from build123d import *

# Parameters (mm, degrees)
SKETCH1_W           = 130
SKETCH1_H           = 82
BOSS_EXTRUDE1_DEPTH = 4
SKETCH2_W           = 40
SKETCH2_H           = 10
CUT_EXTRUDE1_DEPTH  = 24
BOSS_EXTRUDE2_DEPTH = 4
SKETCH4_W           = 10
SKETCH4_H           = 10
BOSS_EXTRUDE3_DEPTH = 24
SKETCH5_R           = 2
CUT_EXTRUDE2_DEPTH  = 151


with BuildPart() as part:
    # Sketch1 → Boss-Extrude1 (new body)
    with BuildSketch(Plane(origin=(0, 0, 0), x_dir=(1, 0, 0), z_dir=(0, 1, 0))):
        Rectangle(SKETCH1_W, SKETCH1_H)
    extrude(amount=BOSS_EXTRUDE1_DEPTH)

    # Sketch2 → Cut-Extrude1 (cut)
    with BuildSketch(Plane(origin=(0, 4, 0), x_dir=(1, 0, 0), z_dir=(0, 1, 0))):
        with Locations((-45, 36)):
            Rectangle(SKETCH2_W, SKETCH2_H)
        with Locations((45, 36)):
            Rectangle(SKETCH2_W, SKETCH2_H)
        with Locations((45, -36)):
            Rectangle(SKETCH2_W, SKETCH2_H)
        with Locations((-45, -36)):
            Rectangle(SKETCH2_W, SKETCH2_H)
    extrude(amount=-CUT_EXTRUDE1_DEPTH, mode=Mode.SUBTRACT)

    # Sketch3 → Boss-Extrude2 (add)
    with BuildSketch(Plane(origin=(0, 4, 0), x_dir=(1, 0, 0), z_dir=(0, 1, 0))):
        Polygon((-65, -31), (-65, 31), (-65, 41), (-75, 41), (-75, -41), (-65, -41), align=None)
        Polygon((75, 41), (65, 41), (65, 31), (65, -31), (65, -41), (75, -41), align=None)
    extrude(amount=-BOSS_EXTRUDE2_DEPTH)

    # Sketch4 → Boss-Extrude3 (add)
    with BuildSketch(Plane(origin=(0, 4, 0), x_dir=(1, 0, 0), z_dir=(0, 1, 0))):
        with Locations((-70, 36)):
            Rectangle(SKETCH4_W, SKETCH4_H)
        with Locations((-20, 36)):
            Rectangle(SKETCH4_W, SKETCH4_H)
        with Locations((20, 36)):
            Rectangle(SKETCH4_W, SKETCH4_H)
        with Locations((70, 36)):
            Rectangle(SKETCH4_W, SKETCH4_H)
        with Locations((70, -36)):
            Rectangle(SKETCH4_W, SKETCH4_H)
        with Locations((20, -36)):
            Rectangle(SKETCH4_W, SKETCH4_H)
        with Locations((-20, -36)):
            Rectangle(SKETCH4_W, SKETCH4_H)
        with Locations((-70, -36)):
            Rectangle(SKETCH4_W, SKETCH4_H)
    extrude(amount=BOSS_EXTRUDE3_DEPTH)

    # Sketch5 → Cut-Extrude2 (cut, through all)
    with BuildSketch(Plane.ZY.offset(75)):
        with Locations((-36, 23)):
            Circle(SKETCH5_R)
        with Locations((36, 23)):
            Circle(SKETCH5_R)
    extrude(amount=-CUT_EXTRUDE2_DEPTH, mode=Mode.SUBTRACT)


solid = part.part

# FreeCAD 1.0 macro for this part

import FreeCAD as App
import Part
import Sketcher

V = App.Vector
Q = App.Units.Quantity

doc = App.newDocument("Part")
params = doc.addObject("Spreadsheet::Sheet", "Params")
for row, (alias, value) in enumerate([
    ("sketch1_width", "130 mm"),
    ("sketch1_height", "82 mm"),
    ("pad1_length", "4 mm"),
    ("sketch2_width", "40 mm"),
    ("sketch2_height", "10 mm"),
    ("pocket1_length", "24 mm"),
    ("sketch3_width", "10 mm"),
    ("sketch3_height", "82 mm"),
    ("pad2_length", "4 mm"),
    ("sketch4_width", "10 mm"),
    ("pad3_length", "24 mm"),
    ("sketch5_diameter", "4 mm"),
], start=1):
    params.set(f"A{row}", alias)
    params.set(f"B{row}", "=" + value)
    params.setAlias(f"B{row}", alias)

body = doc.addObject("PartDesign::Body", "Body")

sketch1 = doc.addObject("Sketcher::SketchObject", "Sketch")
body.addObject(sketch1)
sketch1.AttachmentSupport = (doc.XZ_Plane, [""])
sketch1.MapMode = "FlatFace"
sketch1.addGeometry([
    Part.LineSegment(V(-65, -41, 0), V(-65, 41, 0)),
    Part.LineSegment(V(-65, 41, 0), V(65, 41, 0)),
    Part.LineSegment(V(65, 41, 0), V(65, -41, 0)),
    Part.LineSegment(V(65, -41, 0), V(-65, -41, 0)),
], False)
sketch1.addConstraint([
    Sketcher.Constraint("Coincident", 0, 2, 1, 1),
    Sketcher.Constraint("Coincident", 1, 2, 2, 1),
    Sketcher.Constraint("Coincident", 2, 2, 3, 1),
    Sketcher.Constraint("Coincident", 3, 2, 0, 1),
    Sketcher.Constraint("Vertical", 0),
    Sketcher.Constraint("Horizontal", 1),
    Sketcher.Constraint("Vertical", 2),
    Sketcher.Constraint("Horizontal", 3),
    Sketcher.Constraint("Symmetric", 0, 2, 2, 2, -1, 1),
    Sketcher.Constraint("DistanceX", 1, 1, 1, 2, Q("130 mm")),
    Sketcher.Constraint("DistanceY", 0, 1, 0, 2, Q("82 mm")),
])
sketch1.setExpression("Constraints[9]", "Params.sketch1_width")
sketch1.setExpression("Constraints[10]", "Params.sketch1_height")
pad1 = doc.addObject("PartDesign::Pad", "Pad")
body.addObject(pad1)
pad1.Profile = sketch1
pad1.setExpression("Length", "Params.pad1_length")
pad1.Reversed = True

sketch2 = doc.addObject("Sketcher::SketchObject", "Sketch001")
body.addObject(sketch2)
sketch2.AttachmentSupport = (doc.XZ_Plane, [""])
sketch2.MapMode = "FlatFace"
sketch2.AttachmentOffset = App.Placement(V(0, 0, -4), App.Rotation())
sketch2.addGeometry([
    Part.LineSegment(V(-65, -41, 0), V(-65, -31, 0)),
    Part.LineSegment(V(-65, -31, 0), V(-25, -31, 0)),
    Part.LineSegment(V(-25, -31, 0), V(-25, -41, 0)),
    Part.LineSegment(V(-25, -41, 0), V(-65, -41, 0)),
    Part.LineSegment(V(25, -41, 0), V(25, -31, 0)),
    Part.LineSegment(V(25, -31, 0), V(65, -31, 0)),
    Part.LineSegment(V(65, -31, 0), V(65, -41, 0)),
    Part.LineSegment(V(65, -41, 0), V(25, -41, 0)),
    Part.LineSegment(V(25, 31, 0), V(25, 41, 0)),
    Part.LineSegment(V(25, 41, 0), V(65, 41, 0)),
    Part.LineSegment(V(65, 41, 0), V(65, 31, 0)),
    Part.LineSegment(V(65, 31, 0), V(25, 31, 0)),
    Part.LineSegment(V(-65, 31, 0), V(-65, 41, 0)),
    Part.LineSegment(V(-65, 41, 0), V(-25, 41, 0)),
    Part.LineSegment(V(-25, 41, 0), V(-25, 31, 0)),
    Part.LineSegment(V(-25, 31, 0), V(-65, 31, 0)),
], False)
sketch2.addConstraint([
    Sketcher.Constraint("Coincident", 0, 2, 1, 1),
    Sketcher.Constraint("Coincident", 1, 2, 2, 1),
    Sketcher.Constraint("Coincident", 2, 2, 3, 1),
    Sketcher.Constraint("Coincident", 3, 2, 0, 1),
    Sketcher.Constraint("Coincident", 4, 2, 5, 1),
    Sketcher.Constraint("Coincident", 5, 2, 6, 1),
    Sketcher.Constraint("Coincident", 6, 2, 7, 1),
    Sketcher.Constraint("Coincident", 7, 2, 4, 1),
    Sketcher.Constraint("Coincident", 8, 2, 9, 1),
    Sketcher.Constraint("Coincident", 9, 2, 10, 1),
    Sketcher.Constraint("Coincident", 10, 2, 11, 1),
    Sketcher.Constraint("Coincident", 11, 2, 8, 1),
    Sketcher.Constraint("Coincident", 12, 2, 13, 1),
    Sketcher.Constraint("Coincident", 13, 2, 14, 1),
    Sketcher.Constraint("Coincident", 14, 2, 15, 1),
    Sketcher.Constraint("Coincident", 15, 2, 12, 1),
    Sketcher.Constraint("Vertical", 0),
    Sketcher.Constraint("Horizontal", 1),
    Sketcher.Constraint("Vertical", 2),
    Sketcher.Constraint("Horizontal", 3),
    Sketcher.Constraint("Vertical", 4),
    Sketcher.Constraint("Horizontal", 5),
    Sketcher.Constraint("Vertical", 6),
    Sketcher.Constraint("Horizontal", 7),
    Sketcher.Constraint("Vertical", 8),
    Sketcher.Constraint("Horizontal", 9),
    Sketcher.Constraint("Vertical", 10),
    Sketcher.Constraint("Horizontal", 11),
    Sketcher.Constraint("Vertical", 12),
    Sketcher.Constraint("Horizontal", 13),
    Sketcher.Constraint("Vertical", 14),
    Sketcher.Constraint("Horizontal", 15),
    Sketcher.Constraint("Symmetric", 2, 2, 8, 2, -1, 1),
    Sketcher.Constraint("Symmetric", 0, 2, 10, 2, -1, 1),
    Sketcher.Constraint("Symmetric", 6, 2, 12, 2, -1, 1),
    Sketcher.Constraint("Symmetric", 4, 2, 14, 2, -1, 1),
    Sketcher.Constraint("Symmetric", 1, 2, 4, 2, -2),
    Sketcher.Constraint("Symmetric", 3, 2, 6, 2, -2),
    Sketcher.Constraint("DistanceX", 1, 1, 1, 2, Q("40 mm")),
    Sketcher.Constraint("DistanceY", 0, 1, 0, 2, Q("10 mm")),
    Sketcher.Constraint("DistanceX", 0, 2, -1, 1, Q("65 mm")),
    Sketcher.Constraint("DistanceY", 0, 2, -1, 1, Q("31 mm")),
])
sketch2.setExpression("Constraints[38]", "Params.sketch2_width")
sketch2.setExpression("Constraints[39]", "Params.sketch2_height")
pocket1 = doc.addObject("PartDesign::Pocket", "Pocket")
body.addObject(pocket1)
pocket1.Profile = sketch2
pocket1.setExpression("Length", "Params.pocket1_length")
pocket1.Reversed = True

sketch3 = doc.addObject("Sketcher::SketchObject", "Sketch002")
body.addObject(sketch3)
sketch3.AttachmentSupport = (doc.XZ_Plane, [""])
sketch3.MapMode = "FlatFace"
sketch3.AttachmentOffset = App.Placement(V(0, 0, -4), App.Rotation())
sketch3.addGeometry([
    Part.LineSegment(V(-65, -41, 0), V(-75, -41, 0)),
    Part.LineSegment(V(-75, -41, 0), V(-75, 41, 0)),
    Part.LineSegment(V(-75, 41, 0), V(-65, 41, 0)),
    Part.LineSegment(V(-65, 41, 0), V(-65, -41, 0)),
    Part.LineSegment(V(75, -41, 0), V(65, -41, 0)),
    Part.LineSegment(V(65, -41, 0), V(65, 41, 0)),
    Part.LineSegment(V(65, 41, 0), V(75, 41, 0)),
    Part.LineSegment(V(75, 41, 0), V(75, -41, 0)),
], False)
sketch3.addConstraint([
    Sketcher.Constraint("Coincident", 0, 2, 1, 1),
    Sketcher.Constraint("Coincident", 1, 2, 2, 1),
    Sketcher.Constraint("Coincident", 2, 2, 3, 1),
    Sketcher.Constraint("Coincident", 3, 2, 0, 1),
    Sketcher.Constraint("Coincident", 4, 2, 5, 1),
    Sketcher.Constraint("Coincident", 5, 2, 6, 1),
    Sketcher.Constraint("Coincident", 6, 2, 7, 1),
    Sketcher.Constraint("Coincident", 7, 2, 4, 1),
    Sketcher.Constraint("Horizontal", 0),
    Sketcher.Constraint("Vertical", 1),
    Sketcher.Constraint("Horizontal", 2),
    Sketcher.Constraint("Vertical", 3),
    Sketcher.Constraint("Horizontal", 4),
    Sketcher.Constraint("Vertical", 5),
    Sketcher.Constraint("Horizontal", 6),
    Sketcher.Constraint("Vertical", 7),
    Sketcher.Constraint("Symmetric", 2, 2, 4, 2, -1, 1),
    Sketcher.Constraint("Symmetric", 0, 2, 6, 2, -1, 1),
    Sketcher.Constraint("Horizontal", 3, 2, 4, 2),
    Sketcher.Constraint("DistanceX", 0, 2, 0, 1, Q("10 mm")),
    Sketcher.Constraint("DistanceY", 1, 1, 1, 2, Q("82 mm")),
    Sketcher.Constraint("DistanceX", 0, 2, -1, 1, Q("75 mm")),
])
sketch3.setExpression("Constraints[19]", "Params.sketch3_width")
sketch3.setExpression("Constraints[20]", "Params.sketch3_height")
pad2 = doc.addObject("PartDesign::Pad", "Pad001")
body.addObject(pad2)
pad2.Profile = sketch3
pad2.setExpression("Length", "Params.pad2_length")

sketch4 = doc.addObject("Sketcher::SketchObject", "Sketch003")
body.addObject(sketch4)
sketch4.AttachmentSupport = (doc.XZ_Plane, [""])
sketch4.MapMode = "FlatFace"
sketch4.AttachmentOffset = App.Placement(V(0, 0, -4), App.Rotation())
sketch4.addGeometry([
    Part.LineSegment(V(-75, -41, 0), V(-75, -31, 0)),
    Part.LineSegment(V(-75, -31, 0), V(-65, -31, 0)),
    Part.LineSegment(V(-65, -31, 0), V(-65, -41, 0)),
    Part.LineSegment(V(-65, -41, 0), V(-75, -41, 0)),
    Part.LineSegment(V(-25, -41, 0), V(-25, -31, 0)),
    Part.LineSegment(V(-25, -31, 0), V(-15, -31, 0)),
    Part.LineSegment(V(-15, -31, 0), V(-15, -41, 0)),
    Part.LineSegment(V(-15, -41, 0), V(-25, -41, 0)),
    Part.LineSegment(V(15, -41, 0), V(15, -31, 0)),
    Part.LineSegment(V(15, -31, 0), V(25, -31, 0)),
    Part.LineSegment(V(25, -31, 0), V(25, -41, 0)),
    Part.LineSegment(V(25, -41, 0), V(15, -41, 0)),
    Part.LineSegment(V(65, -41, 0), V(65, -31, 0)),
    Part.LineSegment(V(65, -31, 0), V(75, -31, 0)),
    Part.LineSegment(V(75, -31, 0), V(75, -41, 0)),
    Part.LineSegment(V(75, -41, 0), V(65, -41, 0)),
    Part.LineSegment(V(65, 31, 0), V(65, 41, 0)),
    Part.LineSegment(V(65, 41, 0), V(75, 41, 0)),
    Part.LineSegment(V(75, 41, 0), V(75, 31, 0)),
    Part.LineSegment(V(75, 31, 0), V(65, 31, 0)),
    Part.LineSegment(V(15, 31, 0), V(15, 41, 0)),
    Part.LineSegment(V(15, 41, 0), V(25, 41, 0)),
    Part.LineSegment(V(25, 41, 0), V(25, 31, 0)),
    Part.LineSegment(V(25, 31, 0), V(15, 31, 0)),
    Part.LineSegment(V(-25, 31, 0), V(-25, 41, 0)),
    Part.LineSegment(V(-25, 41, 0), V(-15, 41, 0)),
    Part.LineSegment(V(-15, 41, 0), V(-15, 31, 0)),
    Part.LineSegment(V(-15, 31, 0), V(-25, 31, 0)),
    Part.LineSegment(V(-75, 31, 0), V(-75, 41, 0)),
    Part.LineSegment(V(-75, 41, 0), V(-65, 41, 0)),
    Part.LineSegment(V(-65, 41, 0), V(-65, 31, 0)),
    Part.LineSegment(V(-65, 31, 0), V(-75, 31, 0)),
], False)
sketch4.addConstraint([
    Sketcher.Constraint("Coincident", 0, 2, 1, 1),
    Sketcher.Constraint("Coincident", 1, 2, 2, 1),
    Sketcher.Constraint("Coincident", 2, 2, 3, 1),
    Sketcher.Constraint("Coincident", 3, 2, 0, 1),
    Sketcher.Constraint("Coincident", 4, 2, 5, 1),
    Sketcher.Constraint("Coincident", 5, 2, 6, 1),
    Sketcher.Constraint("Coincident", 6, 2, 7, 1),
    Sketcher.Constraint("Coincident", 7, 2, 4, 1),
    Sketcher.Constraint("Coincident", 8, 2, 9, 1),
    Sketcher.Constraint("Coincident", 9, 2, 10, 1),
    Sketcher.Constraint("Coincident", 10, 2, 11, 1),
    Sketcher.Constraint("Coincident", 11, 2, 8, 1),
    Sketcher.Constraint("Coincident", 12, 2, 13, 1),
    Sketcher.Constraint("Coincident", 13, 2, 14, 1),
    Sketcher.Constraint("Coincident", 14, 2, 15, 1),
    Sketcher.Constraint("Coincident", 15, 2, 12, 1),
    Sketcher.Constraint("Coincident", 16, 2, 17, 1),
    Sketcher.Constraint("Coincident", 17, 2, 18, 1),
    Sketcher.Constraint("Coincident", 18, 2, 19, 1),
    Sketcher.Constraint("Coincident", 19, 2, 16, 1),
    Sketcher.Constraint("Coincident", 20, 2, 21, 1),
    Sketcher.Constraint("Coincident", 21, 2, 22, 1),
    Sketcher.Constraint("Coincident", 22, 2, 23, 1),
    Sketcher.Constraint("Coincident", 23, 2, 20, 1),
    Sketcher.Constraint("Coincident", 24, 2, 25, 1),
    Sketcher.Constraint("Coincident", 25, 2, 26, 1),
    Sketcher.Constraint("Coincident", 26, 2, 27, 1),
    Sketcher.Constraint("Coincident", 27, 2, 24, 1),
    Sketcher.Constraint("Coincident", 28, 2, 29, 1),
    Sketcher.Constraint("Coincident", 29, 2, 30, 1),
    Sketcher.Constraint("Coincident", 30, 2, 31, 1),
    Sketcher.Constraint("Coincident", 31, 2, 28, 1),
    Sketcher.Constraint("Vertical", 0),
    Sketcher.Constraint("Horizontal", 1),
    Sketcher.Constraint("Vertical", 2),
    Sketcher.Constraint("Horizontal", 3),
    Sketcher.Constraint("Vertical", 4),
    Sketcher.Constraint("Horizontal", 5),
    Sketcher.Constraint("Vertical", 6),
    Sketcher.Constraint("Horizontal", 7),
    Sketcher.Constraint("Vertical", 8),
    Sketcher.Constraint("Horizontal", 9),
    Sketcher.Constraint("Vertical", 10),
    Sketcher.Constraint("Horizontal", 11),
    Sketcher.Constraint("Vertical", 12),
    Sketcher.Constraint("Horizontal", 13),
    Sketcher.Constraint("Vertical", 14),
    Sketcher.Constraint("Horizontal", 15),
    Sketcher.Constraint("Vertical", 16),
    Sketcher.Constraint("Horizontal", 17),
    Sketcher.Constraint("Vertical", 18),
    Sketcher.Constraint("Horizontal", 19),
    Sketcher.Constraint("Vertical", 20),
    Sketcher.Constraint("Horizontal", 21),
    Sketcher.Constraint("Vertical", 22),
    Sketcher.Constraint("Horizontal", 23),
    Sketcher.Constraint("Vertical", 24),
    Sketcher.Constraint("Horizontal", 25),
    Sketcher.Constraint("Vertical", 26),
    Sketcher.Constraint("Horizontal", 27),
    Sketcher.Constraint("Vertical", 28),
    Sketcher.Constraint("Horizontal", 29),
    Sketcher.Constraint("Vertical", 30),
    Sketcher.Constraint("Horizontal", 31),
    Sketcher.Constraint("Symmetric", 2, 2, 16, 2, -1, 1),
    Sketcher.Constraint("Symmetric", 0, 2, 18, 2, -1, 1),
    Sketcher.Constraint("Symmetric", 6, 2, 20, 2, -1, 1),
    Sketcher.Constraint("Symmetric", 4, 2, 22, 2, -1, 1),
    Sketcher.Constraint("Symmetric", 10, 2, 24, 2, -1, 1),
    Sketcher.Constraint("Symmetric", 8, 2, 26, 2, -1, 1),
    Sketcher.Constraint("Symmetric", 14, 2, 28, 2, -1, 1),
    Sketcher.Constraint("Symmetric", 12, 2, 30, 2, -1, 1),
    Sketcher.Constraint("Symmetric", 5, 2, 8, 2, -2),
    Sketcher.Constraint("Symmetric", 7, 2, 10, 2, -2),
    Sketcher.Constraint("Symmetric", 1, 2, 12, 2, -2),
    Sketcher.Constraint("Symmetric", 3, 2, 14, 2, -2),
    Sketcher.Constraint("Horizontal", 1, 2, 4, 2),
    Sketcher.Constraint("Horizontal", 3, 2, 6, 2),
    Sketcher.Constraint("Equal", 3, 5),
    Sketcher.Constraint("Equal", 31, 0),
    Sketcher.Constraint("DistanceX", 1, 1, 1, 2, Q("10 mm")),
    Sketcher.Constraint("DistanceX", 0, 2, -1, 1, Q("75 mm")),
    Sketcher.Constraint("DistanceY", 0, 2, -1, 1, Q("31 mm")),
    Sketcher.Constraint("DistanceX", 4, 2, -1, 1, Q("25 mm")),
])
sketch4.setExpression("Constraints[80]", "Params.sketch4_width")
pad3 = doc.addObject("PartDesign::Pad", "Pad002")
body.addObject(pad3)
pad3.Profile = sketch4
pad3.setExpression("Length", "Params.pad3_length")
pad3.Reversed = True

sketch5 = doc.addObject("Sketcher::SketchObject", "Sketch004")
body.addObject(sketch5)
sketch5.AttachmentSupport = (doc.YZ_Plane, [""])
sketch5.MapMode = "FlatFace"
sketch5.AttachmentOffset = App.Placement(V(0, 0, -75), App.Rotation())
sketch5.addGeometry([
    Part.Circle(V(23, -36, 0), V(0, 0, 1), 2),
    Part.Circle(V(23, 36, 0), V(0, 0, 1), 2),
], False)
sketch5.addConstraint([
    Sketcher.Constraint("Equal", 0, 1),
    Sketcher.Constraint("Symmetric", 0, 3, 1, 3, -1),
    Sketcher.Constraint("Diameter", 0, Q("4 mm")),
    Sketcher.Constraint("DistanceX", -1, 1, 0, 3, Q("23 mm")),
    Sketcher.Constraint("DistanceY", 0, 3, -1, 1, Q("36 mm")),
])
sketch5.setExpression("Constraints[2]", "Params.sketch5_diameter")
pocket2 = doc.addObject("PartDesign::Pocket", "Pocket001")
body.addObject(pocket2)
pocket2.Profile = sketch5
pocket2.Type = "ThroughAll"
pocket2.Reversed = True

doc.recompute()
